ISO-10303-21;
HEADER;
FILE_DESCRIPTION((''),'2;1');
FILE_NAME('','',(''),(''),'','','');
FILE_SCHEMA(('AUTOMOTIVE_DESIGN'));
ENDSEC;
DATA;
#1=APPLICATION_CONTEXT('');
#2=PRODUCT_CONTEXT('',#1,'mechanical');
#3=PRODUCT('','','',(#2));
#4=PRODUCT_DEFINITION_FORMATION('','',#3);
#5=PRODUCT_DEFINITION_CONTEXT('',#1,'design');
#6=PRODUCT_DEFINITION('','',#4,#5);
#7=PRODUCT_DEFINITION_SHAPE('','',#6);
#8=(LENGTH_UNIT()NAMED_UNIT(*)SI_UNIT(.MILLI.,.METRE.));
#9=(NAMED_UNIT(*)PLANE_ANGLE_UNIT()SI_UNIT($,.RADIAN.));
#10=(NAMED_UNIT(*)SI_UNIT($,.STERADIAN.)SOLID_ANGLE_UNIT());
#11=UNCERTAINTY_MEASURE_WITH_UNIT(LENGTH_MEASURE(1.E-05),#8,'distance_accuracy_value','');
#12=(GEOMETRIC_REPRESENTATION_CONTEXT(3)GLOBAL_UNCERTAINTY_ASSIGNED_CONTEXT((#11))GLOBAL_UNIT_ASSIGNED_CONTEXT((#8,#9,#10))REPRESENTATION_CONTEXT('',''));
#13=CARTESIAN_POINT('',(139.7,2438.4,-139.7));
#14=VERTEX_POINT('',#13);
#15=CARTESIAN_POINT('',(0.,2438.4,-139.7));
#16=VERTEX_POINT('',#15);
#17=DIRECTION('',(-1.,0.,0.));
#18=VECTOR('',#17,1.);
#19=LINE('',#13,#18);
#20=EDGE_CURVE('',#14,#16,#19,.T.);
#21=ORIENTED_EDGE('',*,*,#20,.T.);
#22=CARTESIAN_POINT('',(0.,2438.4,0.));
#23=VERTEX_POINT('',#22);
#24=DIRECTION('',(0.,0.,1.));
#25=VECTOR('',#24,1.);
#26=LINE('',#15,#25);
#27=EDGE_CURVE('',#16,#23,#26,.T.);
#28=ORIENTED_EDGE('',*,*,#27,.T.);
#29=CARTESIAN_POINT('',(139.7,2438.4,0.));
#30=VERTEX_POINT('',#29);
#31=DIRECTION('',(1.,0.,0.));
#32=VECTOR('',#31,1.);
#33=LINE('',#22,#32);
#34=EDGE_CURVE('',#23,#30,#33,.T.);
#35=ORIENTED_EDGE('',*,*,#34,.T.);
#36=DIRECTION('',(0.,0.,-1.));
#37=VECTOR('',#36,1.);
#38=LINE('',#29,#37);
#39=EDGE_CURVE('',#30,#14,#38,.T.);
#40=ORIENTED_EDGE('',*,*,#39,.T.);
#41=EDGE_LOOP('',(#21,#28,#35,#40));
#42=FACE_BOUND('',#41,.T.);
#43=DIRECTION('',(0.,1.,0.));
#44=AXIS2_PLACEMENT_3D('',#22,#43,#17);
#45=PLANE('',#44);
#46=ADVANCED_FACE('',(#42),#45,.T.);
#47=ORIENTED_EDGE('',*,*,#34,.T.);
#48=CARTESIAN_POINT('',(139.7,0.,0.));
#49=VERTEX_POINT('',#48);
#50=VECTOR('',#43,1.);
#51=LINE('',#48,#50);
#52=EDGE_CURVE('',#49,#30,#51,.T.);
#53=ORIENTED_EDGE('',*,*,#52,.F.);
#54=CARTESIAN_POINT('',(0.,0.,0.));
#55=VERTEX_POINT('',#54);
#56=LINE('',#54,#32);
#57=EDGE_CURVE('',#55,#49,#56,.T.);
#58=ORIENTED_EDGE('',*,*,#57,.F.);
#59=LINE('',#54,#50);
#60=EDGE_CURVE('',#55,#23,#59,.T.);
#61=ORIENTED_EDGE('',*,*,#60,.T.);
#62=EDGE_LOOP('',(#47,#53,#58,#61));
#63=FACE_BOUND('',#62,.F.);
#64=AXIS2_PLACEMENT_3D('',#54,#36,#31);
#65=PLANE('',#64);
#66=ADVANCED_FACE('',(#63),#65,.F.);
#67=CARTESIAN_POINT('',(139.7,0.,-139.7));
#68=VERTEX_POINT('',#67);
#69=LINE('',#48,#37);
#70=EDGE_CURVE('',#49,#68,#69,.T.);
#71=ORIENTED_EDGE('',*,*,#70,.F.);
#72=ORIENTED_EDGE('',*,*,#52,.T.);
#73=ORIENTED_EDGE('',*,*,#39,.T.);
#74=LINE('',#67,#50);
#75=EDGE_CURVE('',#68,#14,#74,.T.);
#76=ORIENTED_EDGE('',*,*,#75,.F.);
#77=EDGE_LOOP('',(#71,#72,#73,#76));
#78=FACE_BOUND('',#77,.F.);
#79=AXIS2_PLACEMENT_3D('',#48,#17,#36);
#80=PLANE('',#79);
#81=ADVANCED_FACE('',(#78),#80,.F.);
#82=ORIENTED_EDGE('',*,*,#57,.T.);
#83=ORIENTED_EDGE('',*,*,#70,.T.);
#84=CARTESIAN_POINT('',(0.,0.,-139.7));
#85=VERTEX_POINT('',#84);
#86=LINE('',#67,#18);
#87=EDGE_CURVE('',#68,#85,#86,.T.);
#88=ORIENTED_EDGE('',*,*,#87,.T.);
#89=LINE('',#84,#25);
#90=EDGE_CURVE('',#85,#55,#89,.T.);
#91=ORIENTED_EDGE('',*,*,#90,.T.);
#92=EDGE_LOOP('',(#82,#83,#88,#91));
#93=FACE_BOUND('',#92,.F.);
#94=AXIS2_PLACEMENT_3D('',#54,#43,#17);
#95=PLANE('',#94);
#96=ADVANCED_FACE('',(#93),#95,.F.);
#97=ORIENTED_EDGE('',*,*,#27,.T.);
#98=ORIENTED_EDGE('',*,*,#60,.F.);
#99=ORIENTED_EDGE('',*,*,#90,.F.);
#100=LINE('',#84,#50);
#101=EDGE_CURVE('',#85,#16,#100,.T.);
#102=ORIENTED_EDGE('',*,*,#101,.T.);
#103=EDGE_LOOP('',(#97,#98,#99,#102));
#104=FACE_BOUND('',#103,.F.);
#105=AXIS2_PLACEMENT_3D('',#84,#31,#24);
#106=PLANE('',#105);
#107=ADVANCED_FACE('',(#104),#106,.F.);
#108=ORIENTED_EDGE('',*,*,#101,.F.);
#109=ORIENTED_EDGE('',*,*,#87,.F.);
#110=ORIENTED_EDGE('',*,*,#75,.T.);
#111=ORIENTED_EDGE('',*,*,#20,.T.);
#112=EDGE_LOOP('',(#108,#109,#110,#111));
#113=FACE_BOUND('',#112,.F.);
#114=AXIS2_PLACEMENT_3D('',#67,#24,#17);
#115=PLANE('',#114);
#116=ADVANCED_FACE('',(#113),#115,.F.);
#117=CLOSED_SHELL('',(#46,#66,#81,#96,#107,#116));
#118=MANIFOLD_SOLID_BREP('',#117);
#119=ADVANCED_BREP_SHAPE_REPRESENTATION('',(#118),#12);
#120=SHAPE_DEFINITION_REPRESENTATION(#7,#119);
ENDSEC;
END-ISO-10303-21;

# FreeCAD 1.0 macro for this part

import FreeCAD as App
import Part
import Sketcher

V = App.Vector
Q = App.Units.Quantity

doc = App.newDocument("Part")
body = doc.addObject("PartDesign::Body", "Body")

sketch1 = body.newObject("Sketcher::SketchObject", "Sketch")
sketch1.AttachmentSupport = (doc.getObject("XZ_Plane"), [""])
sketch1.MapMode = "FlatFace"
sketch1.addGeometry([
    Part.LineSegment(V(0, -140, 0), V(0, 0, 0)),
    Part.LineSegment(V(0, 0, 0), V(140, 0, 0)),
    Part.LineSegment(V(140, 0, 0), V(140, -140, 0)),
    Part.LineSegment(V(140, -140, 0), V(0, -140, 0)),
], False)
sketch1.addConstraint([
    Sketcher.Constraint("Coincident", 0, 2, 1, 1),
    Sketcher.Constraint("Coincident", 1, 2, 2, 1),
    Sketcher.Constraint("Coincident", 2, 2, 3, 1),
    Sketcher.Constraint("Coincident", 3, 2, 0, 1),
    Sketcher.Constraint("Vertical", 0),
    Sketcher.Constraint("Horizontal", 1),
    Sketcher.Constraint("Vertical", 2),
    Sketcher.Constraint("Horizontal", 3),
    Sketcher.Constraint("Coincident", 0, 2, -1, 1),
    Sketcher.Constraint("Equal", 3, 0),
    Sketcher.Constraint("DistanceX", 1, 1, 1, 2, Q("5.5 in")),
])
pad1 = body.newObject("PartDesign::Pad", "Pad")
pad1.Profile = sketch1
pad1.Length = Q("96 in")
pad1.Reversed = True

doc.recompute()
